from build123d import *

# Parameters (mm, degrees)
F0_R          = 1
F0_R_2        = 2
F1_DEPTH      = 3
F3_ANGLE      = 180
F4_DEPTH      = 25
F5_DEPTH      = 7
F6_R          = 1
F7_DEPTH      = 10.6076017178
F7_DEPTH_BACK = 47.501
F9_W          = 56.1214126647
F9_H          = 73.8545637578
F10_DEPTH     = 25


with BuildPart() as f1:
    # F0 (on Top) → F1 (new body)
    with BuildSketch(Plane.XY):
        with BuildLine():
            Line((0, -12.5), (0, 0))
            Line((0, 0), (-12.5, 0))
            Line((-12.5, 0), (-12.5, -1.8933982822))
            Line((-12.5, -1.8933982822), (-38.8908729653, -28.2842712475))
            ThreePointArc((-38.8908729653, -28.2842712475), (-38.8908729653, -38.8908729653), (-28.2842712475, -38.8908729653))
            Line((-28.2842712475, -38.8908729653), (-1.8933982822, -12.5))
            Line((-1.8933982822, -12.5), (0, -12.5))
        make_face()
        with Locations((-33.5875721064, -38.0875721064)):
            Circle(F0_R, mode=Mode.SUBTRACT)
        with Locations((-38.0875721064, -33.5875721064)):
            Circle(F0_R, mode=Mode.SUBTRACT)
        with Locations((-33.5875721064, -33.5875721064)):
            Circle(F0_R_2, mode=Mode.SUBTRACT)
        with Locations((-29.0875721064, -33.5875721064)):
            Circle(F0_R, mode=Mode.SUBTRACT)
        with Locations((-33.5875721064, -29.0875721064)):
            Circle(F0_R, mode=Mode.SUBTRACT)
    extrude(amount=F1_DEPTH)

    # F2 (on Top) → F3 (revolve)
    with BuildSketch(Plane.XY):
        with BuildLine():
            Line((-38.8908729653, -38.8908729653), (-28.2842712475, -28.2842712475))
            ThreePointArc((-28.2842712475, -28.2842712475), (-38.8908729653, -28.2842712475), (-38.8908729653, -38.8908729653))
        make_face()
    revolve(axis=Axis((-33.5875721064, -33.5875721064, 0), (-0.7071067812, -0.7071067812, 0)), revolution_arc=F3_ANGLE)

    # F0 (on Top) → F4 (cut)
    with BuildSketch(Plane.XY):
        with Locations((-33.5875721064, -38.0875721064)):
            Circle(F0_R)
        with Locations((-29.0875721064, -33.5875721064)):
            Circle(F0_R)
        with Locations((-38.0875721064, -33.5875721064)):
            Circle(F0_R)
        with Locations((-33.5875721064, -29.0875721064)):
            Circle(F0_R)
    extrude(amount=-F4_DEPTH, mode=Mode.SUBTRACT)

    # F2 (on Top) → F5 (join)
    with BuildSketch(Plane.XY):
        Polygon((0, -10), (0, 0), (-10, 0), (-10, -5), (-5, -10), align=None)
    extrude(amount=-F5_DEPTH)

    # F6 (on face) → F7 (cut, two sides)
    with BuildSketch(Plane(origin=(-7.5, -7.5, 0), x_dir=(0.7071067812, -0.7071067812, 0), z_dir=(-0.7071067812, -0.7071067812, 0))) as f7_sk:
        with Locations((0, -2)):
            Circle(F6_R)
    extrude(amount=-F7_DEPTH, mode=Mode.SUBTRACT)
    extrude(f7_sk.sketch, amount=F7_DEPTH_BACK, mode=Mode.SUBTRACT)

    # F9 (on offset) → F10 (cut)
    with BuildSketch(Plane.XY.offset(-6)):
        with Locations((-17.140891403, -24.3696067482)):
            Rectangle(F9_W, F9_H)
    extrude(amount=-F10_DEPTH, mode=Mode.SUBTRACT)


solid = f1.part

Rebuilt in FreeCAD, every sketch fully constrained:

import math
import FreeCAD as App
import Part
import Sketcher
from FreeCAD import Vector
Q = App.Units.Quantity


def add_polygon(sketch, points):
    """Adds a closed chain of lines whose ends are joined by coincident constraints."""
    first, n = sketch.GeometryCount, len(points)
    for a, b in zip(points, points[1:] + points[:1]):
        sketch.addGeometry(Part.LineSegment(App.Vector(*a, 0), App.Vector(*b, 0)), False)
    for i in range(n):
        sketch.addConstraint(Sketcher.Constraint("Coincident", first + i, 2, first + (i + 1) % n, 1))

doc = App.newDocument("Part")
body = doc.addObject("PartDesign::Body", "Body")

sketch1 = body.newObject("Sketcher::SketchObject", "Sketch")
sketch1.AttachmentSupport = (doc.getObject("XY_Plane"), [""])
sketch1.MapMode = "FlatFace"
sketch1.addGeometry([
    Part.LineSegment(Vector(0, -12.5, 0), Vector(0, 0, 0)),
    Part.LineSegment(Vector(0, 0, 0), Vector(-12.5, 0, 0)),
    Part.LineSegment(Vector(-12.5, 0, 0), Vector(-12.5, -1.893398, 0)),
    Part.LineSegment(Vector(-12.5, -1.893398, 0), Vector(-38.890873, -28.284271, 0)),
    Part.ArcOfCircle(Part.Circle(Vector(-33.587572, -33.587572, 0), Vector(0, 0, 1), 7.5), math.radians(135), math.radians(315)),
    Part.LineSegment(Vector(-28.284271, -38.890873, 0), Vector(-1.893398, -12.5, 0)),
    Part.LineSegment(Vector(-1.893398, -12.5, 0), Vector(0, -12.5, 0)),
    Part.Circle(Vector(-33.587572, -38.087572, 0), Vector(0, 0, 1), 1),
    Part.Circle(Vector(-38.087572, -33.587572, 0), Vector(0, 0, 1), 1),
    Part.Circle(Vector(-33.587572, -33.587572, 0), Vector(0, 0, 1), 2),
    Part.Circle(Vector(-29.087572, -33.587572, 0), Vector(0, 0, 1), 1),
    Part.Circle(Vector(-33.587572, -29.087572, 0), Vector(0, 0, 1), 1),
], False)
sketch1.addConstraint([
    Sketcher.Constraint("Coincident", 0, 2, 1, 1),
    Sketcher.Constraint("Coincident", 1, 2, 2, 1),
    Sketcher.Constraint("Coincident", 2, 2, 3, 1),
    Sketcher.Constraint("Tangent", 3, 2, 4, 1),
    Sketcher.Constraint("Tangent", 4, 2, 5, 1),
    Sketcher.Constraint("Coincident", 5, 2, 6, 1),
    Sketcher.Constraint("Coincident", 6, 2, 0, 1),
    Sketcher.Constraint("Vertical", 0),
    Sketcher.Constraint("Horizontal", 1),
    Sketcher.Constraint("Vertical", 2),
    Sketcher.Constraint("Horizontal", 6),
    Sketcher.Constraint("Coincident", 0, 2, -1, 1),
    Sketcher.Constraint("Coincident", 9, 3, 4, 3),
    Sketcher.Constraint("Equal", 7, 8),
    Sketcher.Constraint("Equal", 8, 10),
    Sketcher.Constraint("Equal", 10, 11),
    Sketcher.Constraint("Parallel", 3, 5),
    Sketcher.Constraint("Horizontal", 4, 3, 8, 3),
    Sketcher.Constraint("Horizontal", 9, 3, 10, 3),
    Sketcher.Constraint("Vertical", 4, 3, 7, 3),
    Sketcher.Constraint("Vertical", 9, 3, 11, 3),
    Sketcher.Constraint("Equal", 1, 0),
    Sketcher.Constraint("Equal", 6, 2),
    Sketcher.Constraint("Equal", 3, 5),
    Sketcher.Constraint("Diameter", 7, 2.0),
    Sketcher.Constraint("Diameter", 9, 4.0),
    Sketcher.Constraint("Radius", 4, 7.5),
    Sketcher.Constraint("DistanceX", 1, 2, 1, 1, 12.5),
    Sketcher.Constraint("DistanceX", 8, 3, 10, 3, 9.0),
    Sketcher.Constraint("DistanceY", 7, 3, 11, 3, 9.0),
    Sketcher.Constraint("DistanceY", 7, 3, 4, 3, 4.5),
    Sketcher.Constraint("DistanceX", 8, 3, 4, 3, 4.5),
    Sketcher.Constraint("Distance", 3, 37.32233),
])
pad1 = body.newObject("PartDesign::Pad", "Pad")
pad1.Profile = sketch1
pad1.Length = 3

sketch2 = body.newObject("Sketcher::SketchObject", "Sketch001")
sketch2.AttachmentSupport = (doc.getObject("XY_Plane"), [""])
sketch2.MapMode = "FlatFace"
sketch2.addGeometry([
    Part.LineSegment(Vector(-38.890873, -38.890873, 0), Vector(-28.284271, -28.284271, 0)),
    Part.ArcOfCircle(Part.Circle(Vector(-33.587572, -33.587572, 0), Vector(0, 0, 1), 7.5), math.radians(45), math.radians(225)),
], False)
sketch2.addGeometry(Part.LineSegment(Vector(-28.284271, -28.284271, 0), Vector(-38.890873, -38.890873, 0)), True)
sketch2.addConstraint([
    Sketcher.Constraint("Coincident", 0, 1, 1, 2),
    Sketcher.Constraint("Coincident", 1, 1, 0, 2),
    Sketcher.Constraint("Coincident", 2, 1, 1, 1),
    Sketcher.Constraint("Coincident", 2, 2, 0, 1),
    Sketcher.Constraint("Radius", 1, 7.5),
    Sketcher.Constraint("Angle", 0, Q("45 deg")),
    Sketcher.Constraint("DistanceX", 0, 1, 1, 3, 5.303301),
    Sketcher.Constraint("DistanceX", 1, 1, -1, 1, 28.284271),
    Sketcher.Constraint("DistanceY", 1, 1, -1, 1, 28.284271),
])
revolution = body.newObject("PartDesign::Revolution", "Revolution")
revolution.Profile = sketch2
revolution.ReferenceAxis = (sketch2, ["Axis0"])
revolution.Angle = 180

sketch3 = body.newObject("Sketcher::SketchObject", "Sketch002")
sketch3.AttachmentSupport = (doc.getObject("XY_Plane"), [""])
sketch3.MapMode = "FlatFace"
sketch3.addGeometry([
    Part.Circle(Vector(-33.587572, -38.087572, 0), Vector(0, 0, 1), 1),
    Part.Circle(Vector(-29.087572, -33.587572, 0), Vector(0, 0, 1), 1),
    Part.Circle(Vector(-38.087572, -33.587572, 0), Vector(0, 0, 1), 1),
    Part.Circle(Vector(-33.587572, -29.087572, 0), Vector(0, 0, 1), 1),
], False)
sketch3.addConstraint([
    Sketcher.Constraint("Equal", 0, 1),
    Sketcher.Constraint("Equal", 1, 2),
    Sketcher.Constraint("Equal", 2, 3),
    Sketcher.Constraint("Horizontal", 1, 3, 2, 3),
    Sketcher.Constraint("Vertical", 0, 3, 3, 3),
    Sketcher.Constraint("Diameter", 0, 2.0),
    Sketcher.Constraint("DistanceX", 2, 3, 1, 3, 9.0),
    Sketcher.Constraint("DistanceY", 0, 3, 3, 3, 9.0),
    Sketcher.Constraint("DistanceX", 0, 3, 1, 3, 4.5),
    Sketcher.Constraint("DistanceY", 0, 3, 1, 3, 4.5),
    Sketcher.Constraint("DistanceX", 0, 3, -1, 1, 33.587572),
    Sketcher.Constraint("DistanceY", 0, 3, -1, 1, 38.087572),
])
pocket1 = body.newObject("PartDesign::Pocket", "Pocket")
pocket1.Profile = sketch3
pocket1.Length = 25

sketch4 = body.newObject("Sketcher::SketchObject", "Sketch003")
sketch4.AttachmentSupport = (doc.getObject("XY_Plane"), [""])
sketch4.MapMode = "FlatFace"
add_polygon(sketch4, [(0, -10), (0, 0), (-10, 0), (-10, -5), (-5, -10)])
sketch4.addConstraint([
    Sketcher.Constraint("Vertical", 0),
    Sketcher.Constraint("Horizontal", 1),
    Sketcher.Constraint("Vertical", 2),
    Sketcher.Constraint("Horizontal", 4),
    Sketcher.Constraint("Coincident", 0, 2, -1, 1),
    Sketcher.Constraint("Equal", 1, 0),
    Sketcher.Constraint("Equal", 4, 2),
    Sketcher.Constraint("DistanceX", 1, 2, 1, 1, 10.0),
    Sketcher.Constraint("DistanceX", 4, 1, 4, 2, 5.0),
])
pad2 = body.newObject("PartDesign::Pad", "Pad001")
pad2.Profile = sketch4
pad2.Length = 7
pad2.Reversed = True

sketch5 = body.newObject("Sketcher::SketchObject", "Sketch004")
sketch5.Placement = App.Placement(Vector(-7.5, -7.5, 0), App.Rotation(Vector(0.707106781, -0.707106781, 0), Vector(0, 0, 0.999999999), Vector(-0.707106781, -0.707106781, 0), "ZXY"))
sketch5.addGeometry(Part.Circle(Vector(0, -2, 0), Vector(0, 0, 1), 1), False)
sketch5.addConstraint([
    Sketcher.Constraint("PointOnObject", 0, 3, -2),
    Sketcher.Constraint("Diameter", 0, 2.0),
    Sketcher.Constraint("DistanceY", 0, 3, -1, 1, 2.0),
])
pocket2 = body.newObject("PartDesign::Pocket", "Pocket001")
pocket2.Profile = sketch5
pocket2.Type = "ThroughAll"
pocket2.Midplane = True

sketch6 = body.newObject("Sketcher::SketchObject", "Sketch005")
sketch6.AttachmentSupport = (doc.getObject("XY_Plane"), [""])
sketch6.MapMode = "FlatFace"
sketch6.AttachmentOffset = App.Placement(Vector(0, 0, -6), App.Rotation())
add_polygon(sketch6, [(-45.201598, 12.557675), (-45.201598, -61.296889), (10.919815, -61.296889), (10.919815, 12.557675)])
sketch6.addConstraint([
    Sketcher.Constraint("Vertical", 0),
    Sketcher.Constraint("Horizontal", 1),
    Sketcher.Constraint("Vertical", 2),
    Sketcher.Constraint("Horizontal", 3),
    Sketcher.Constraint("DistanceX", 1, 1, 1, 2, 56.121413),
    Sketcher.Constraint("DistanceY", 0, 2, 0, 1, 73.854564),
    Sketcher.Constraint("DistanceY", 0, 2, -1, 1, 61.296889),
    Sketcher.Constraint("DistanceX", 0, 2, -1, 1, 45.201598),
])
pocket3 = body.newObject("PartDesign::Pocket", "Pocket002")
pocket3.Profile = sketch6
pocket3.Length = 25

doc.recompute()
